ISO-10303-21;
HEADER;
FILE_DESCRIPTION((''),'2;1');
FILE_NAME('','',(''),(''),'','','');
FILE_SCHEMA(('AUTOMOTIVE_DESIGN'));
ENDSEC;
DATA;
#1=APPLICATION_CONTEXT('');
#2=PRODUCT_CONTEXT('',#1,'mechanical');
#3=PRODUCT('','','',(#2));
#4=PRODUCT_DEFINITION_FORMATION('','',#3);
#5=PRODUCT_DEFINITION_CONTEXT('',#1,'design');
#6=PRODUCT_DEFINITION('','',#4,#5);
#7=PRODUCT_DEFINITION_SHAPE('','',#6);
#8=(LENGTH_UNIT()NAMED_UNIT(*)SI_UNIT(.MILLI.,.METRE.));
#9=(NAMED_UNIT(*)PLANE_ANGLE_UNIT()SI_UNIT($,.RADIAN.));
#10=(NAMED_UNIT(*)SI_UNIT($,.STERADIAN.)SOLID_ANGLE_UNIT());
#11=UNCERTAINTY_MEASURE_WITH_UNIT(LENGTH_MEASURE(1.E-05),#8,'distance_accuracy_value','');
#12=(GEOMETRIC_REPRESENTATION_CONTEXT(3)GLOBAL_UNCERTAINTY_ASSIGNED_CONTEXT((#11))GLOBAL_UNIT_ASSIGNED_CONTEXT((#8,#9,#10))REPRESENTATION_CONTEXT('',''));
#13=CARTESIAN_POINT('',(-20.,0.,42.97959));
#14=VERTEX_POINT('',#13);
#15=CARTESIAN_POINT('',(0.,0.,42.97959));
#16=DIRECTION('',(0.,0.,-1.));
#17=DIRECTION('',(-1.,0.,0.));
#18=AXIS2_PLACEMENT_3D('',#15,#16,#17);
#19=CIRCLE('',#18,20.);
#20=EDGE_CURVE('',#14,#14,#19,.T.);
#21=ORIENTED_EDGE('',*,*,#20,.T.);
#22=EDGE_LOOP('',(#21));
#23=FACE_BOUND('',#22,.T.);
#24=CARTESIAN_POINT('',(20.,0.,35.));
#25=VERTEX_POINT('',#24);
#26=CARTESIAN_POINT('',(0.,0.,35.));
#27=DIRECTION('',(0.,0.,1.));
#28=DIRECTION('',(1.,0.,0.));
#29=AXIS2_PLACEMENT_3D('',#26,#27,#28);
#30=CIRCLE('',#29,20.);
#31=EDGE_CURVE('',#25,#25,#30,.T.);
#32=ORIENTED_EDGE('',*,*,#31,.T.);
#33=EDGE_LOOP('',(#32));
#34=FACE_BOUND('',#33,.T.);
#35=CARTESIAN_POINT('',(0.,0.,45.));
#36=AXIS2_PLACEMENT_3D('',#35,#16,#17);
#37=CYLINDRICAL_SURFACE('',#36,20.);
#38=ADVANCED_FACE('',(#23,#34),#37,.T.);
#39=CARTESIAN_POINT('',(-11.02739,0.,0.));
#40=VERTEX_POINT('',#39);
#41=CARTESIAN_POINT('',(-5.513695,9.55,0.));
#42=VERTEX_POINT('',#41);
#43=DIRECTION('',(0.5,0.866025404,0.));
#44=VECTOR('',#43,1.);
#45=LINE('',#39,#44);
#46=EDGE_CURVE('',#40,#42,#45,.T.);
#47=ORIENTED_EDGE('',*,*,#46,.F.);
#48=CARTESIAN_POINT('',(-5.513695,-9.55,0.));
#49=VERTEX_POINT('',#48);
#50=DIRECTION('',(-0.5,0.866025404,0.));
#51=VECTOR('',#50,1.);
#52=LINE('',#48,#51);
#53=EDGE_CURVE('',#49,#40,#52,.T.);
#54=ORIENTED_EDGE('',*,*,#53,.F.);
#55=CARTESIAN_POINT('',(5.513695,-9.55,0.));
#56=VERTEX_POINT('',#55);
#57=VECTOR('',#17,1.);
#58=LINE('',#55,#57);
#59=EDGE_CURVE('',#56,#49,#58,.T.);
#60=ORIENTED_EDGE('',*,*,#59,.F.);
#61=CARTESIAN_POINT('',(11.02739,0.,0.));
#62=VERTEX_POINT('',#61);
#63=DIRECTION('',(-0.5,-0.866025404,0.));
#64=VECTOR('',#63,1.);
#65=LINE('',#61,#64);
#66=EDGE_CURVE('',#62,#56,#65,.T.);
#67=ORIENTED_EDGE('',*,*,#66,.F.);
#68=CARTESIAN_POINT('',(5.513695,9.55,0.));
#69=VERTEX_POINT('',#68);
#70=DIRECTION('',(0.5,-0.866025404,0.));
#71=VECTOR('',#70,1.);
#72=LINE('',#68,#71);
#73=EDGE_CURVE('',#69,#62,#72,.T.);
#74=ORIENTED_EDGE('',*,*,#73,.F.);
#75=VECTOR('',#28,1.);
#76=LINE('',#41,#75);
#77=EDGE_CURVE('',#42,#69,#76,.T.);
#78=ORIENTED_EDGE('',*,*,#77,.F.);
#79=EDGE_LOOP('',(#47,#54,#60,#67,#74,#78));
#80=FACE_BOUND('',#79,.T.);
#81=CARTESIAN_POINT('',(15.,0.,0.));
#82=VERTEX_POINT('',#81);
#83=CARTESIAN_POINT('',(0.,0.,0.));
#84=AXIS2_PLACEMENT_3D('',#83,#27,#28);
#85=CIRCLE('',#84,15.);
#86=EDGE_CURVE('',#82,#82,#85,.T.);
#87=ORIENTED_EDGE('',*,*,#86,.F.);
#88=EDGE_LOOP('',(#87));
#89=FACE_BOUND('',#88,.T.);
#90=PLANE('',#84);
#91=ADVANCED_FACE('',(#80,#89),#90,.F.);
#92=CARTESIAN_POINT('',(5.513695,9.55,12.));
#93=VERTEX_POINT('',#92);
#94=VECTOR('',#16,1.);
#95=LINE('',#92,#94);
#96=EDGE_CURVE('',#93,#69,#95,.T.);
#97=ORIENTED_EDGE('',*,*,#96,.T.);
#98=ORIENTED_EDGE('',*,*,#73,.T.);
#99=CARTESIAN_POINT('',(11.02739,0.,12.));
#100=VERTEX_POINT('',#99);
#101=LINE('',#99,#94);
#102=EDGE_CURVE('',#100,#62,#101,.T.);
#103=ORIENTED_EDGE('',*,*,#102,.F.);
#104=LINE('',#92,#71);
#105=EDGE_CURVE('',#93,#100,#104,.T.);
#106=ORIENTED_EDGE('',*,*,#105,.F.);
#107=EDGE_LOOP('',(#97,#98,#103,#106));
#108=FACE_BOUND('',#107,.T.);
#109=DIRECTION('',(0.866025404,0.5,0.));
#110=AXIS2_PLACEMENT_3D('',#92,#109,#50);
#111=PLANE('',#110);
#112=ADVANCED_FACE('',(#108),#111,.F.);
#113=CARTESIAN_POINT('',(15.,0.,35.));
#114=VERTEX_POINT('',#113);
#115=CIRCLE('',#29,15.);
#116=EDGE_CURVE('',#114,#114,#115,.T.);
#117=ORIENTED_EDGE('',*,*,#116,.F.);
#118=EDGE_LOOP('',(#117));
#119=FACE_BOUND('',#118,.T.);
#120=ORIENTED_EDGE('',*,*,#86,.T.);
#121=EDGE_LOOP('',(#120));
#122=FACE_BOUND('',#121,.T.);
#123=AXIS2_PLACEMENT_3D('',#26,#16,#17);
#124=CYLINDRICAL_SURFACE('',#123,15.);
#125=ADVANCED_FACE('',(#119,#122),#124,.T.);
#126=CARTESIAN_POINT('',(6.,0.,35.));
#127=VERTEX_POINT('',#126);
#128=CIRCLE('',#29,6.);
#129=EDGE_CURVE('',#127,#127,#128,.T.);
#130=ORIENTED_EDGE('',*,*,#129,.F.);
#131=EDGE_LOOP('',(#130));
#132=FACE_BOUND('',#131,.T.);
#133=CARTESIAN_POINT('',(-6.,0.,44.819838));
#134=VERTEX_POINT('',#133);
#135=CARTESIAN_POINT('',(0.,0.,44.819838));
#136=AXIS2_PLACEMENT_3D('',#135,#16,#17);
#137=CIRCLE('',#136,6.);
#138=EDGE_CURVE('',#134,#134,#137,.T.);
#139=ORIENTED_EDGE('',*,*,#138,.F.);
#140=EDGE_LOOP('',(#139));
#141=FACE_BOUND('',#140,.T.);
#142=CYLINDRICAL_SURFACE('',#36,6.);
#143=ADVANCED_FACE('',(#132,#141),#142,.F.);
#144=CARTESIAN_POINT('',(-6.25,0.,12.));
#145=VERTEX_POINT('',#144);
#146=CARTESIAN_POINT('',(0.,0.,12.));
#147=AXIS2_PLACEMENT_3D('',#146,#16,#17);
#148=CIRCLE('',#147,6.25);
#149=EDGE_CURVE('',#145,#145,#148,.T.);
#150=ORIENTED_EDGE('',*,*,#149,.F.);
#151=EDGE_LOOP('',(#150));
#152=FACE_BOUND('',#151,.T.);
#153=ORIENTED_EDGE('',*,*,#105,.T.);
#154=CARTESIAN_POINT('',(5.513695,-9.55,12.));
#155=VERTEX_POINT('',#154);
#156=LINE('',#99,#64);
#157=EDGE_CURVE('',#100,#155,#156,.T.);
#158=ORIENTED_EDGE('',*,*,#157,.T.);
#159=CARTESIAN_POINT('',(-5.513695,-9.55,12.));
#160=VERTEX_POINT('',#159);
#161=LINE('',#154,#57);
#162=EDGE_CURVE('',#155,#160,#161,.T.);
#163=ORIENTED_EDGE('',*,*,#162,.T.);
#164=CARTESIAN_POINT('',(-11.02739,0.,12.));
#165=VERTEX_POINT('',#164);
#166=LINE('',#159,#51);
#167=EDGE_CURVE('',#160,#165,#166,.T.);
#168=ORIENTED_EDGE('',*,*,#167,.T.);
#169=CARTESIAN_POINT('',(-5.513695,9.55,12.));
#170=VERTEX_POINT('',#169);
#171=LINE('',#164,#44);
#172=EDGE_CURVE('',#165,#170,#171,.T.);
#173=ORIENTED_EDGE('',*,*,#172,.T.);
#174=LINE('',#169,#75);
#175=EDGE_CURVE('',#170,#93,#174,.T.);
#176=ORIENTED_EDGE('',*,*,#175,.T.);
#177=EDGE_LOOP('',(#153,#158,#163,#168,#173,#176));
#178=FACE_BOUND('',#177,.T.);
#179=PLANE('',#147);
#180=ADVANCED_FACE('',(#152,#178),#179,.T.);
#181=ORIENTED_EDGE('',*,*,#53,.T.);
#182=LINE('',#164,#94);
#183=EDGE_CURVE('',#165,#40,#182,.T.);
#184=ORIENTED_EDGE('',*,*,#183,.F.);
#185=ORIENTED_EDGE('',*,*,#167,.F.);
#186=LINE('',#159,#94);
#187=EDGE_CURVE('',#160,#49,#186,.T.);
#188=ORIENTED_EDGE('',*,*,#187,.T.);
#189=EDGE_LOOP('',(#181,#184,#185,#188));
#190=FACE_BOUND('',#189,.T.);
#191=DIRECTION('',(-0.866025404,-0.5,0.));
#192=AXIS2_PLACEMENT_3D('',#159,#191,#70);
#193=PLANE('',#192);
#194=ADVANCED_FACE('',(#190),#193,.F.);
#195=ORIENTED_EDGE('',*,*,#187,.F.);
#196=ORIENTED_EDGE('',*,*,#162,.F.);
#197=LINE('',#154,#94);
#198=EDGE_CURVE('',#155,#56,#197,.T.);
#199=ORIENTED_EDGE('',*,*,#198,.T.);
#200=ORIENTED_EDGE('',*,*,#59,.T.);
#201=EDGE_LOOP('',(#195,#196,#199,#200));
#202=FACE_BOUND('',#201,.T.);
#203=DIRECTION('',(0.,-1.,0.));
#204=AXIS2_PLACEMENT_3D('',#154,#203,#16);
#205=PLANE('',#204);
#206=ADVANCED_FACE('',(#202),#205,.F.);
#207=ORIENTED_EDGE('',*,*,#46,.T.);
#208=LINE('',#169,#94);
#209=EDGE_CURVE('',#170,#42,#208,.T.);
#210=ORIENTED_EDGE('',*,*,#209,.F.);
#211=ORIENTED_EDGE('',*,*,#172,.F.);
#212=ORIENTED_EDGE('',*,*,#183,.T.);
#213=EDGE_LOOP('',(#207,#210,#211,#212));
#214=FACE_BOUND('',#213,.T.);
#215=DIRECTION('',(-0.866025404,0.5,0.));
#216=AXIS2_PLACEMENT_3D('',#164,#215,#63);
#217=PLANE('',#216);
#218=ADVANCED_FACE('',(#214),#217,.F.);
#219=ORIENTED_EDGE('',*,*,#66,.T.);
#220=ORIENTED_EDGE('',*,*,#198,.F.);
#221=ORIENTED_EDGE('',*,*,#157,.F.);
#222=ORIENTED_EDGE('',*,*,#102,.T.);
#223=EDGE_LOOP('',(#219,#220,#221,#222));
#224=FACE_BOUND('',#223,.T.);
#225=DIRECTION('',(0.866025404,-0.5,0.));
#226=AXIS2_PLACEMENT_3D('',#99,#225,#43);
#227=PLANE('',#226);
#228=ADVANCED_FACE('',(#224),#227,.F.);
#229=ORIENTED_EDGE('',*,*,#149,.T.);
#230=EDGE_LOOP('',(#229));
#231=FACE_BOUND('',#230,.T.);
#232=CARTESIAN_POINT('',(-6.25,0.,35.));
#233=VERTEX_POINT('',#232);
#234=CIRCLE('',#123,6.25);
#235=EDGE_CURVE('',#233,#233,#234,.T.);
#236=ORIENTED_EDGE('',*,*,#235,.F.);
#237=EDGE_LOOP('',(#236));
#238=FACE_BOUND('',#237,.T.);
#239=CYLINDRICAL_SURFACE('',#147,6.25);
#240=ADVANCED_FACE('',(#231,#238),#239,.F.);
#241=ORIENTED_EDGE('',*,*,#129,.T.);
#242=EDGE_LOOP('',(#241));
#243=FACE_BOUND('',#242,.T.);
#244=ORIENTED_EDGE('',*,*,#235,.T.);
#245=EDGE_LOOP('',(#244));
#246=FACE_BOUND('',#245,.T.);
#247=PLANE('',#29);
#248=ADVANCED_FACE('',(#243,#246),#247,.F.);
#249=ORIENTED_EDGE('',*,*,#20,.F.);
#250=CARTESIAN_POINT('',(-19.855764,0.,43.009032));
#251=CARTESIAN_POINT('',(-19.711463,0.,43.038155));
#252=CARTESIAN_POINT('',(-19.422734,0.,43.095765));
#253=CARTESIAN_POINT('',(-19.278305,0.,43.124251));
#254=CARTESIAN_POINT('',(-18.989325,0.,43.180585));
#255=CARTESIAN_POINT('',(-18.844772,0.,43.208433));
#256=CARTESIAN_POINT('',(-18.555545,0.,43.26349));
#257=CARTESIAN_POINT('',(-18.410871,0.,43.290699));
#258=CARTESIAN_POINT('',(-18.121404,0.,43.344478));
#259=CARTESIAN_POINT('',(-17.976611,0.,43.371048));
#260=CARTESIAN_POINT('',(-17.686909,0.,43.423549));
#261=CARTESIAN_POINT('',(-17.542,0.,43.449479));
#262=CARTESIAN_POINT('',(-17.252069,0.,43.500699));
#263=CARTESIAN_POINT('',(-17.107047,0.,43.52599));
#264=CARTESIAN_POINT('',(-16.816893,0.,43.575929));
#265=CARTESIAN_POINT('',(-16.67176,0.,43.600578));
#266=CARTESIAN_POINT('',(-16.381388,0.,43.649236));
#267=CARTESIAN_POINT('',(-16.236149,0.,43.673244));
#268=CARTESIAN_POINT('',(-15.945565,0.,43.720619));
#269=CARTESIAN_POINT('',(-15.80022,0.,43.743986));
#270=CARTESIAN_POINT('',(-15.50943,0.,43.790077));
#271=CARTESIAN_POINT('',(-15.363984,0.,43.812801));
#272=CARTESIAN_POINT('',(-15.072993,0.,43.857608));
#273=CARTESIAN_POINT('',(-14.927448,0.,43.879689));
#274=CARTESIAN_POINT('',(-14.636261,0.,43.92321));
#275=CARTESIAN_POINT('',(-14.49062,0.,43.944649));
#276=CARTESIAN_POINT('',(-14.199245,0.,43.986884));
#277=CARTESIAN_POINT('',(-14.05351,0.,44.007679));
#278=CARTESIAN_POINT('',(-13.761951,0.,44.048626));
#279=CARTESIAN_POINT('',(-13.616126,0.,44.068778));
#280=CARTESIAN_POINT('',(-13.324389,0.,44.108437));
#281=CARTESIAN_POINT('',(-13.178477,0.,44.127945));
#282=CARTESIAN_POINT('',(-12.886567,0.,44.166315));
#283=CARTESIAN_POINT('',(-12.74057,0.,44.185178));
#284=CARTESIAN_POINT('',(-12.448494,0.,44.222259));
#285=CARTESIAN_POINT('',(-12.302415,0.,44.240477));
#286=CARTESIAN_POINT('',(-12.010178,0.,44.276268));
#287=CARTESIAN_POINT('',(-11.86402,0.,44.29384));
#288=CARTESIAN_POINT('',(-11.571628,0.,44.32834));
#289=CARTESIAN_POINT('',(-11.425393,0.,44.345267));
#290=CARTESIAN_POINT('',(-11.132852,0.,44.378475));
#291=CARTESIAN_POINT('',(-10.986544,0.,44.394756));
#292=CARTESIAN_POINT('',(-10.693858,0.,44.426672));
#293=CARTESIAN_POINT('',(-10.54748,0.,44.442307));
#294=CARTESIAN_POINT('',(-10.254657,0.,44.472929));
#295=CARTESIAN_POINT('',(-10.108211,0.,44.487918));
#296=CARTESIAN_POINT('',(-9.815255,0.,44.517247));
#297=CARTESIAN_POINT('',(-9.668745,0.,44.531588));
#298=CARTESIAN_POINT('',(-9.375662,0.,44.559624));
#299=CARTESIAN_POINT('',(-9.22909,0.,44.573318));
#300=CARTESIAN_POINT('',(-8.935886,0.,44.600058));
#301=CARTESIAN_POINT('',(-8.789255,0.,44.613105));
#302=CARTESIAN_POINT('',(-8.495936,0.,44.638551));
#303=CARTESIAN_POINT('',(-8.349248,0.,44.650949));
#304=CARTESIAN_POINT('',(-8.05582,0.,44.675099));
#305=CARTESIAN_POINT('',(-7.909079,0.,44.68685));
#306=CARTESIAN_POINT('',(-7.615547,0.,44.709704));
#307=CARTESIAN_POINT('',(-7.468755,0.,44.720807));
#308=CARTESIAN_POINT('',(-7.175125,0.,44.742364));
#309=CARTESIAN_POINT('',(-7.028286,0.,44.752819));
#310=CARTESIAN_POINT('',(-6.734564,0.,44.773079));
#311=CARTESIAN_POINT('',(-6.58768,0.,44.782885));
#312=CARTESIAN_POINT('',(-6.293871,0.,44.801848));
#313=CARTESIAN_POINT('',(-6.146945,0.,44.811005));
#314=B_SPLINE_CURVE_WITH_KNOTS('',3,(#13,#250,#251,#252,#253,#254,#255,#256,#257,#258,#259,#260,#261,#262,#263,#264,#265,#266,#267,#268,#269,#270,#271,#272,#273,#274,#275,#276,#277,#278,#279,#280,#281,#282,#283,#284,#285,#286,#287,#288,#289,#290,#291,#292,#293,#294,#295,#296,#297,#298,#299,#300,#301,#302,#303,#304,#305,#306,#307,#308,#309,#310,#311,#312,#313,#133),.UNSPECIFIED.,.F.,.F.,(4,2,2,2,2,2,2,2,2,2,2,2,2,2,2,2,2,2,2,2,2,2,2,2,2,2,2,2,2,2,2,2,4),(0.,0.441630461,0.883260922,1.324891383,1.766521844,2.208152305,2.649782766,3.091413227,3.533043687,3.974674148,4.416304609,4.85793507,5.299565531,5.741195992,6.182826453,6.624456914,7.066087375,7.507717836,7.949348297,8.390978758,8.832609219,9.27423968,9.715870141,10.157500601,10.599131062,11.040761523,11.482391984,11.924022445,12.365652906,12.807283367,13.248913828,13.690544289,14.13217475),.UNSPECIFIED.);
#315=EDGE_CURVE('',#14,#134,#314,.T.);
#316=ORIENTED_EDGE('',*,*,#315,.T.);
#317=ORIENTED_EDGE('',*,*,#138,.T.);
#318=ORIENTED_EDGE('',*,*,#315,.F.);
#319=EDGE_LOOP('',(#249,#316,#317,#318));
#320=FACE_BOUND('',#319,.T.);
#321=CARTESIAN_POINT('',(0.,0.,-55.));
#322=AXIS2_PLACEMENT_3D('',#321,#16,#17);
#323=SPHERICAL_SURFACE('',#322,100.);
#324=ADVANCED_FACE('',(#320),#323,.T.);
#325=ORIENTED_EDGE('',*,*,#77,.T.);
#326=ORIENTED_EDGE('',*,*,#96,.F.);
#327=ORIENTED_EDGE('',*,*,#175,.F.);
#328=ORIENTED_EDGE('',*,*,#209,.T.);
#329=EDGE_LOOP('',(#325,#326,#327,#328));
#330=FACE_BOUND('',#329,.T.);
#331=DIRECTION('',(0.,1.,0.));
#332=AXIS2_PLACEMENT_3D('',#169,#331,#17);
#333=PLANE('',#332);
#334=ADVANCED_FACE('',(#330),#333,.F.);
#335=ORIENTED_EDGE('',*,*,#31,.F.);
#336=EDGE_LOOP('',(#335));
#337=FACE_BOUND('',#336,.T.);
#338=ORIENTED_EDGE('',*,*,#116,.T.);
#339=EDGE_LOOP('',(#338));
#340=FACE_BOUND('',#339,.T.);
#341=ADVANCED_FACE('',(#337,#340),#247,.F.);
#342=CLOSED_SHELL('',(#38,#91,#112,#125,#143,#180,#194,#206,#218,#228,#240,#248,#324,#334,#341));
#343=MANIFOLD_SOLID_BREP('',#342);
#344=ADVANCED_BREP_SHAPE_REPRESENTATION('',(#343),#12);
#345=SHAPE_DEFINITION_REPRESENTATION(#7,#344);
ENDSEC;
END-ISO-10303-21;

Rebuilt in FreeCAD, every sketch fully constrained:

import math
import FreeCAD as App
import Part
import Sketcher

V = App.Vector
Q = App.Units.Quantity

doc = App.newDocument("Part")
body = doc.addObject("PartDesign::Body", "Body")

# Sketch on XY plane
sketch1 = body.newObject("Sketcher::SketchObject", "Sketch")
sketch1.AttachmentSupport = (doc.getObject("XY_Plane"), [""])
sketch1.MapMode = "FlatFace"
sketch1.addGeometry(Part.Circle(V(0, 0, 0), V(0, 0, 1), 15), False)
sketch1.addConstraint([
    Sketcher.Constraint("Coincident", 0, 3, -1, 1),
    Sketcher.Constraint("Diameter", 0, Q("30 mm")),
])
pad1 = body.newObject("PartDesign::Pad", "Pad")
pad1.Profile = sketch1
pad1.Length = 35

# Sketch on XY plane
sketch2 = body.newObject("Sketcher::SketchObject", "Sketch001")
sketch2.AttachmentSupport = (doc.getObject("XY_Plane"), [""])
sketch2.MapMode = "FlatFace"
sketch2.addGeometry([
    Part.LineSegment(V(-11, 0, 0), V(-6, 10, 0)),  # 0
    Part.LineSegment(V(-6, 10, 0), V(6, 10, 0)),  # 1
    Part.LineSegment(V(6, 10, 0), V(11, 0, 0)),  # 2
    Part.LineSegment(V(11, 0, 0), V(6, -10, 0)),  # 3
    Part.LineSegment(V(6, -10, 0), V(-6, -10, 0)),  # 4
    Part.LineSegment(V(-6, -10, 0), V(-11, 0, 0)),  # 5
], False)
sketch2.addConstraint([
    Sketcher.Constraint("Coincident", 0, 2, 1, 1),
    Sketcher.Constraint("Coincident", 1, 2, 2, 1),
    Sketcher.Constraint("Coincident", 2, 2, 3, 1),
    Sketcher.Constraint("Coincident", 3, 2, 4, 1),
    Sketcher.Constraint("Coincident", 4, 2, 5, 1),
    Sketcher.Constraint("Coincident", 5, 2, 0, 1),
    Sketcher.Constraint("Horizontal", 1),
    Sketcher.Constraint("Horizontal", 4),
    Sketcher.Constraint("Symmetric", 0, 2, 3, 2, -1, 1),
    Sketcher.Constraint("Symmetric", 2, 2, 5, 2, -1, 1),
    Sketcher.Constraint("PointOnObject", 2, 2, -1),
    Sketcher.Constraint("Parallel", 2, 5),
    Sketcher.Constraint("Vertical", 1, 2, 3, 2),
    Sketcher.Constraint("Angle", 0, Q("60 deg")),
    Sketcher.Constraint("DistanceY", 3, 2, 1, 2, Q("19.1 mm")),
    Sketcher.Constraint("DistanceX", 1, 1, 1, 2, Q("11.02739 mm")),
])
pocket1 = body.newObject("PartDesign::Pocket", "Pocket")
pocket1.Profile = sketch2
pocket1.Length = 12
pocket1.Reversed = True

# Sketch on XY plane
sketch3 = body.newObject("Sketcher::SketchObject", "Sketch002")
sketch3.AttachmentSupport = (doc.getObject("XY_Plane"), [""])
sketch3.MapMode = "FlatFace"
sketch3.AttachmentOffset = App.Placement(V(0, 0, 12), App.Rotation())
sketch3.addGeometry(Part.Circle(V(0, 0, 0), V(0, 0, 1), 6), False)
sketch3.addConstraint([
    Sketcher.Constraint("Coincident", 0, 3, -1, 1),
    Sketcher.Constraint("Diameter", 0, Q("12.5 mm")),
])
doc.recompute()
hole = body.newObject("PartDesign::Hole", "Hole")
hole.Profile = sketch3
hole.ThreadType = "None"
hole.Diameter = 12.5
hole.DepthType = "ThroughAll"
hole.Reversed = True

# Sketch on XY plane
sketch4 = body.newObject("Sketcher::SketchObject", "Sketch003")
sketch4.AttachmentSupport = (doc.getObject("XY_Plane"), [""])
sketch4.MapMode = "FlatFace"
sketch4.AttachmentOffset = App.Placement(V(0, 0, 35), App.Rotation())
sketch4.addGeometry([
    Part.Circle(V(0, 0, 0), V(0, 0, 1), 20),
    Part.Circle(V(0, 0, 0), V(0, 0, 1), 6),
], False)
sketch4.addConstraint([
    Sketcher.Constraint("Coincident", 0, 3, -1, 1),
    Sketcher.Constraint("Coincident", 1, 3, -1, 1),
    Sketcher.Constraint("Diameter", 0, Q("40 mm")),
    Sketcher.Constraint("Diameter", 1, Q("12 mm")),
])
pad2 = body.newObject("PartDesign::Pad", "Pad001")
pad2.Profile = sketch4
pad2.Length = 10

# Sketch on XZ plane
sketch5 = body.newObject("Sketcher::SketchObject", "Sketch004")
sketch5.AttachmentSupport = (doc.getObject("XZ_Plane"), [""])
sketch5.MapMode = "FlatFace"
sketch5.addGeometry([
    Part.LineSegment(V(-20, 42.98, 0), V(-20, 45, 0)),
    Part.LineSegment(V(-20, 45, 0), V(-6, 45, 0)),
    Part.LineSegment(V(-6, 45, 0), V(-6, 44.82, 0)),
    Part.ArcOfCircle(Part.Circle(V(0, -55, 0), V(0, 0, 1), 100), math.radians(93.44), math.radians(101.54)),
], False)
sketch5.addConstraint([
    Sketcher.Constraint("Coincident", 0, 2, 1, 1),
    Sketcher.Constraint("Coincident", 1, 2, 2, 1),
    Sketcher.Constraint("Coincident", 2, 2, 3, 1),
    Sketcher.Constraint("Coincident", 3, 2, 0, 1),
    Sketcher.Constraint("Vertical", 0),
    Sketcher.Constraint("Horizontal", 1),
    Sketcher.Constraint("Vertical", 2),
    Sketcher.Constraint("PointOnObject", 3, 3, -2),
    Sketcher.Constraint("Radius", 3, Q("100 mm")),
    Sketcher.Constraint("DistanceX", 1, 1, 1, 2, Q("14 mm")),
    Sketcher.Constraint("DistanceY", 3, 3, -1, 1, Q("55 mm")),
    Sketcher.Constraint("DistanceX", 0, 2, -1, 1, Q("20 mm")),
    Sketcher.Constraint("DistanceY", -1, 1, 0, 2, Q("45 mm")),
])
groove = body.newObject("PartDesign::Groove", "Groove")
groove.Profile = sketch5
groove.ReferenceAxis = (sketch5, ["V_Axis"])
groove.Angle = 360

doc.recompute()
